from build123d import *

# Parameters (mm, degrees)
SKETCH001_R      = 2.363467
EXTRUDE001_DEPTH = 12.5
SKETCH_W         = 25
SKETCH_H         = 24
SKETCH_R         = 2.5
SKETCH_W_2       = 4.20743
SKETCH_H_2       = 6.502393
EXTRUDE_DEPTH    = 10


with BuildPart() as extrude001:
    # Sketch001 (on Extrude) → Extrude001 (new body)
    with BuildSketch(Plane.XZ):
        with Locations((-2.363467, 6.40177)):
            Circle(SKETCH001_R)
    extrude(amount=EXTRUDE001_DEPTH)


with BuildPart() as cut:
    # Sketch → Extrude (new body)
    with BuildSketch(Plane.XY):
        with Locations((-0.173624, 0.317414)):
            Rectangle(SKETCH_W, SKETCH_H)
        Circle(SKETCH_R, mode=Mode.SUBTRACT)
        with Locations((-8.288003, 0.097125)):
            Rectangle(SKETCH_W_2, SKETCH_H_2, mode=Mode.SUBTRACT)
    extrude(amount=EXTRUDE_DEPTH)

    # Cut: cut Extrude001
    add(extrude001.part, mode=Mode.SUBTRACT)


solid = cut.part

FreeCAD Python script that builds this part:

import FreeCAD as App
import Part
import Sketcher

doc = App.newDocument("Part")
params = doc.addObject("Spreadsheet::Sheet", "Params")
for row, (alias, value) in enumerate([
    ("pad1_length", "12.5 mm"),
    ("sketch2_diameter", "5 mm"),
    ("sketch2_width", "25 mm"),
    ("sketch2_height", "24 mm"),
    ("pad2_length", "10 mm"),
], start=1):
    params.set(f"A{row}", alias)
    params.set(f"B{row}", "=" + value)
    params.setAlias(f"B{row}", alias)

body = doc.addObject("PartDesign::Body", "Body")

# Sketch on XZ plane
sketch1 = body.newObject("Sketcher::SketchObject", "Sketch")
sketch1.AttachmentSupport = (doc.getObject("XZ_Plane"), [""])
sketch1.MapMode = "FlatFace"
sketch1.addGeometry(Part.Circle(App.Vector(-2.363467, 6.40177, 0), App.Vector(0, 0, 1), 2.363467), False)
sketch1.addConstraint([
    Sketcher.Constraint("Diameter", 0, 4.726934),
    Sketcher.Constraint("DistanceY", -1, 1, 0, 3, 6.40177),
    Sketcher.Constraint("DistanceX", 0, 3, -1, 1, 2.363467),
])
pad1 = body.newObject("PartDesign::Pad", "Pad")
pad1.Profile = sketch1
pad1.setExpression("Length", "Params.pad1_length")
body2 = doc.addObject("PartDesign::Body", "Body001")

# Sketch on XY plane
sketch2 = body2.newObject("Sketcher::SketchObject", "Sketch001")
sketch2.AttachmentSupport = (doc.getObject("XY_Plane001"), [""])
sketch2.MapMode = "FlatFace"
sketch2.addGeometry([
    Part.LineSegment(App.Vector(-12.673624, 12.317414, 0), App.Vector(-12.673624, -11.682586, 0)),  # 0
    Part.LineSegment(App.Vector(-12.673624, -11.682586, 0), App.Vector(12.326376, -11.682586, 0)),  # 1
    Part.LineSegment(App.Vector(12.326376, -11.682586, 0), App.Vector(12.326376, 12.317414, 0)),  # 2
    Part.LineSegment(App.Vector(12.326376, 12.317414, 0), App.Vector(-12.673624, 12.317414, 0)),  # 3
    Part.Circle(App.Vector(0, 0, 0), App.Vector(0, 0, 1), 2.5),  # 4
    Part.LineSegment(App.Vector(-6.184288, -3.154072, 0), App.Vector(-10.391718, -3.154072, 0)),  # 5
    Part.LineSegment(App.Vector(-10.391718, -3.154072, 0), App.Vector(-10.391718, 3.348321, 0)),  # 6
    Part.LineSegment(App.Vector(-10.391718, 3.348321, 0), App.Vector(-6.184288, 3.348321, 0)),  # 7
    Part.LineSegment(App.Vector(-6.184288, 3.348321, 0), App.Vector(-6.184288, -3.154072, 0)),  # 8
], False)
sketch2.addConstraint([
    Sketcher.Constraint("Coincident", 0, 2, 1, 1),
    Sketcher.Constraint("Coincident", 1, 2, 2, 1),
    Sketcher.Constraint("Coincident", 2, 2, 3, 1),
    Sketcher.Constraint("Coincident", 3, 2, 0, 1),
    Sketcher.Constraint("Coincident", 5, 2, 6, 1),
    Sketcher.Constraint("Coincident", 6, 2, 7, 1),
    Sketcher.Constraint("Coincident", 7, 2, 8, 1),
    Sketcher.Constraint("Coincident", 8, 2, 5, 1),
    Sketcher.Constraint("Vertical", 0),
    Sketcher.Constraint("Horizontal", 1),
    Sketcher.Constraint("Vertical", 2),
    Sketcher.Constraint("Horizontal", 3),
    Sketcher.Constraint("Horizontal", 5),
    Sketcher.Constraint("Vertical", 6),
    Sketcher.Constraint("Horizontal", 7),
    Sketcher.Constraint("Vertical", 8),
    Sketcher.Constraint("Coincident", 4, 3, -1, 1),
    Sketcher.Constraint("Diameter", 4, 5.0),
    Sketcher.Constraint("DistanceX", 1, 1, 1, 2, 25.0),
    Sketcher.Constraint("DistanceY", 0, 2, 0, 1, 24.0),
    Sketcher.Constraint("DistanceX", 5, 2, 5, 1, 4.20743),
    Sketcher.Constraint("DistanceY", 6, 1, 6, 2, 6.502393),
    Sketcher.Constraint("DistanceY", 5, 2, -1, 1, 3.154072),
    Sketcher.Constraint("DistanceX", 0, 2, -1, 1, 12.673624),
    Sketcher.Constraint("DistanceY", 0, 2, -1, 1, 11.682586),
    Sketcher.Constraint("DistanceX", 5, 2, -1, 1, 10.391718),
])
sketch2.setExpression("Constraints[17]", "Params.sketch2_diameter")
sketch2.setExpression("Constraints[18]", "Params.sketch2_width")
sketch2.setExpression("Constraints[19]", "Params.sketch2_height")
pad2 = body2.newObject("PartDesign::Pad", "Pad001")
pad2.Profile = sketch2
pad2.setExpression("Length", "Params.pad2_length")
doc.recompute()

boolean = body2.newObject("PartDesign::Boolean", "Boolean")
boolean.Type = "Cut"
boolean.addObjects([body])

doc.recompute()
